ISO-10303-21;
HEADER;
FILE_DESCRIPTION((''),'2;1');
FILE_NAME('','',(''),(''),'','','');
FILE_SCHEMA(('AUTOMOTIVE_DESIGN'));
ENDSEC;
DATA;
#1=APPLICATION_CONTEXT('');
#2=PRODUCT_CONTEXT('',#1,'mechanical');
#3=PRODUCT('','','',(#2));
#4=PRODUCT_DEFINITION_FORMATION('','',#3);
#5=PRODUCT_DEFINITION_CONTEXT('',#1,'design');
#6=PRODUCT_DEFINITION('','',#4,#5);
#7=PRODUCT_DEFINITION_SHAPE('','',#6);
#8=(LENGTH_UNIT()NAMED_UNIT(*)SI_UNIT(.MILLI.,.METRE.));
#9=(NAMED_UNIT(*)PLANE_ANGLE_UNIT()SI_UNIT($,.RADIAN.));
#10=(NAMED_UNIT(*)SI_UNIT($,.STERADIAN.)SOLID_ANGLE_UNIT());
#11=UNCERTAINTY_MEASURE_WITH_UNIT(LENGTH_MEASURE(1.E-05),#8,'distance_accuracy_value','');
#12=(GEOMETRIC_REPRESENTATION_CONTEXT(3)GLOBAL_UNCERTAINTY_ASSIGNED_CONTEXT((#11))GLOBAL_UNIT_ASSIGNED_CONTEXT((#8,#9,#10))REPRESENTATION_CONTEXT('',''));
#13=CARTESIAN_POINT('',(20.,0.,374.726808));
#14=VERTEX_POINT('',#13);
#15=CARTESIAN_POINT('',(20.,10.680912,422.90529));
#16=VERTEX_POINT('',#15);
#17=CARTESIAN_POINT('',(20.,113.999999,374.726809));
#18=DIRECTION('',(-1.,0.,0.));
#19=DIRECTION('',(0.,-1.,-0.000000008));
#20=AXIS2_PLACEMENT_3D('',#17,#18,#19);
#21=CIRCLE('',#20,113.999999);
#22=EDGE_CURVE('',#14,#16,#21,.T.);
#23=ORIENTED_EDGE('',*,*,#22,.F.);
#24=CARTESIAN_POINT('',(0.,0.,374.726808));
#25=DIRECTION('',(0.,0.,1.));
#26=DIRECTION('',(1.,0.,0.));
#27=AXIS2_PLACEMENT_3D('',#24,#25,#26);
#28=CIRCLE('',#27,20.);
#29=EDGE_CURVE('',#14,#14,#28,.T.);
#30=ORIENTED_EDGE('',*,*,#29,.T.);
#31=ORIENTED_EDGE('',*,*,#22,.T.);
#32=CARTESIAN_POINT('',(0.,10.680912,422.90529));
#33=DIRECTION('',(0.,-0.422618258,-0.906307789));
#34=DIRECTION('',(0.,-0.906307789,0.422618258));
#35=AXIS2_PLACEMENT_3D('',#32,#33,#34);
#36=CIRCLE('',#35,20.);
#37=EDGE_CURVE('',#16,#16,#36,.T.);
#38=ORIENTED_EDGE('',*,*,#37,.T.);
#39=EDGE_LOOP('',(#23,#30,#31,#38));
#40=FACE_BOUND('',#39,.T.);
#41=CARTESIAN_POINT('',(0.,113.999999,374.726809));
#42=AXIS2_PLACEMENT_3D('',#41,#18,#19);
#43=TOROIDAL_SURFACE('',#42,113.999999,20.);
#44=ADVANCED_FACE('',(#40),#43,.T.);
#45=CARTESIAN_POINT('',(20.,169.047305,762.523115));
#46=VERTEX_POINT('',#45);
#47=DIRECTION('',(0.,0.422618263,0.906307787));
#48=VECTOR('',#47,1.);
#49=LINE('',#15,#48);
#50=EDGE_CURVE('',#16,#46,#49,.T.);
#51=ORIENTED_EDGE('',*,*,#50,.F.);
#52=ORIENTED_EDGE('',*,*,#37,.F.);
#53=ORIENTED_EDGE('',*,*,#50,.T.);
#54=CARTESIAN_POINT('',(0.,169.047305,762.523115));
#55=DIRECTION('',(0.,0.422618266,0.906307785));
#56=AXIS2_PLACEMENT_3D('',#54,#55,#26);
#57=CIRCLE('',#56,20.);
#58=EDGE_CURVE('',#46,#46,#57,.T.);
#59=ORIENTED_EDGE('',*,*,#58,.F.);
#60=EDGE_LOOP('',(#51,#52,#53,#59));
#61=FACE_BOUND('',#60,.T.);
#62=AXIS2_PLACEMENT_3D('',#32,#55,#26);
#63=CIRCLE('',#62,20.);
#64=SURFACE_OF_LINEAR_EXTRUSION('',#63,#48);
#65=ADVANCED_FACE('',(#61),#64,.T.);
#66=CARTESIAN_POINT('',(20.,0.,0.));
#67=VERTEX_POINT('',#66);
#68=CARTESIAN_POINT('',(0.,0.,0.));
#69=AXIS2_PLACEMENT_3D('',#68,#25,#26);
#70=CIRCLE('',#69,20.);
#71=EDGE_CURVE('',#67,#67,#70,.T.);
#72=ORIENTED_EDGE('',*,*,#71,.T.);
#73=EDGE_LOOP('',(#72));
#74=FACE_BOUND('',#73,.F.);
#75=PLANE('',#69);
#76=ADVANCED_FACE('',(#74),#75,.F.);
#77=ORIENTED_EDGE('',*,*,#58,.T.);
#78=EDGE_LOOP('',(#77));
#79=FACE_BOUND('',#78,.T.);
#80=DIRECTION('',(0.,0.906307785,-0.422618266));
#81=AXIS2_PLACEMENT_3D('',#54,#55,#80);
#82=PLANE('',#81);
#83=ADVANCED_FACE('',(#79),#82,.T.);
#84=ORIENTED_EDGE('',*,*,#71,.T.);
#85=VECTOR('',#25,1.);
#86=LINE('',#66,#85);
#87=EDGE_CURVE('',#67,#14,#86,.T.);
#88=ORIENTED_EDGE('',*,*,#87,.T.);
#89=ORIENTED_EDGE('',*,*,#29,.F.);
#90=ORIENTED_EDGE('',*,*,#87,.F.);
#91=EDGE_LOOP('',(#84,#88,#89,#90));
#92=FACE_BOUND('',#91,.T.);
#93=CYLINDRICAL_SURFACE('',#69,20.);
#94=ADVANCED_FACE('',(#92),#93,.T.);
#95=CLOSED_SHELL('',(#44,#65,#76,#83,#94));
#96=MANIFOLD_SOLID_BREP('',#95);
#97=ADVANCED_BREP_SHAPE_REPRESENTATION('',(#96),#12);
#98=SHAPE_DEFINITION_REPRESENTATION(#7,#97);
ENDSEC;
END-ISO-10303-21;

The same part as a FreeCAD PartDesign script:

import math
import FreeCAD as App
import Part
import Sketcher
from FreeCAD import Vector
Q = App.Units.Quantity

doc = App.newDocument("Part")
body = doc.addObject("PartDesign::Body", "Body")

# Sketch on XY plane
sketch1 = doc.addObject("Sketcher::SketchObject", "Sketch")
body.addObject(sketch1)
sketch1.AttachmentSupport = (doc.XY_Plane, [""])
sketch1.MapMode = "FlatFace"
sketch1.addGeometry(Part.Circle(Vector(0, 0, 0), Vector(0, 0, 1), 20), False)
sketch1.addConstraint(Sketcher.Constraint("Coincident", 0, 3, -1, 1))
sketch1.addConstraint(Sketcher.Constraint("Diameter", 0, Q("40 mm")))

# Sketch on YZ plane
sketch2 = doc.addObject("Sketcher::SketchObject", "Sketch001")
body.addObject(sketch2)
sketch2.AttachmentSupport = (doc.YZ_Plane, [""])
sketch2.MapMode = "FlatFace"
sketch2.addGeometry(Part.LineSegment(Vector(0, 0, 0), Vector(0, 375, 0)), False)
sketch2.addGeometry(Part.ArcOfCircle(Part.Circle(Vector(114, 375, 0), Vector(0, 0, 1), 114), math.radians(155), math.radians(180)), False)
sketch2.addGeometry(Part.LineSegment(Vector(11, 423, 0), Vector(169, 763, 0)), False)
sketch2.addConstraint(Sketcher.Constraint("Tangent", 0, 2, 1, 2))
sketch2.addConstraint(Sketcher.Constraint("Tangent", 1, 1, 2, 1))
sketch2.addConstraint(Sketcher.Constraint("Vertical", 0))
sketch2.addConstraint(Sketcher.Constraint("Coincident", 0, 1, -1, 1))
sketch2.addConstraint(Sketcher.Constraint("Radius", 1, Q("113.999999 mm")))
sketch2.addConstraint(Sketcher.Constraint("Angle", 2, Q("65 deg")))
sketch2.addConstraint(Sketcher.Constraint("DistanceY", 0, 1, 0, 2, Q("374.726808 mm")))
sketch2.addConstraint(Sketcher.Constraint("Distance", 2, Q("374.726809 mm")))
doc.recompute()

additivepipe = doc.addObject("PartDesign::AdditivePipe", "AdditivePipe")
body.addObject(additivepipe)
additivepipe.Profile = sketch1
additivepipe.Spine = (sketch2, ["Edge1", "Edge2", "Edge3"])

doc.recompute()
